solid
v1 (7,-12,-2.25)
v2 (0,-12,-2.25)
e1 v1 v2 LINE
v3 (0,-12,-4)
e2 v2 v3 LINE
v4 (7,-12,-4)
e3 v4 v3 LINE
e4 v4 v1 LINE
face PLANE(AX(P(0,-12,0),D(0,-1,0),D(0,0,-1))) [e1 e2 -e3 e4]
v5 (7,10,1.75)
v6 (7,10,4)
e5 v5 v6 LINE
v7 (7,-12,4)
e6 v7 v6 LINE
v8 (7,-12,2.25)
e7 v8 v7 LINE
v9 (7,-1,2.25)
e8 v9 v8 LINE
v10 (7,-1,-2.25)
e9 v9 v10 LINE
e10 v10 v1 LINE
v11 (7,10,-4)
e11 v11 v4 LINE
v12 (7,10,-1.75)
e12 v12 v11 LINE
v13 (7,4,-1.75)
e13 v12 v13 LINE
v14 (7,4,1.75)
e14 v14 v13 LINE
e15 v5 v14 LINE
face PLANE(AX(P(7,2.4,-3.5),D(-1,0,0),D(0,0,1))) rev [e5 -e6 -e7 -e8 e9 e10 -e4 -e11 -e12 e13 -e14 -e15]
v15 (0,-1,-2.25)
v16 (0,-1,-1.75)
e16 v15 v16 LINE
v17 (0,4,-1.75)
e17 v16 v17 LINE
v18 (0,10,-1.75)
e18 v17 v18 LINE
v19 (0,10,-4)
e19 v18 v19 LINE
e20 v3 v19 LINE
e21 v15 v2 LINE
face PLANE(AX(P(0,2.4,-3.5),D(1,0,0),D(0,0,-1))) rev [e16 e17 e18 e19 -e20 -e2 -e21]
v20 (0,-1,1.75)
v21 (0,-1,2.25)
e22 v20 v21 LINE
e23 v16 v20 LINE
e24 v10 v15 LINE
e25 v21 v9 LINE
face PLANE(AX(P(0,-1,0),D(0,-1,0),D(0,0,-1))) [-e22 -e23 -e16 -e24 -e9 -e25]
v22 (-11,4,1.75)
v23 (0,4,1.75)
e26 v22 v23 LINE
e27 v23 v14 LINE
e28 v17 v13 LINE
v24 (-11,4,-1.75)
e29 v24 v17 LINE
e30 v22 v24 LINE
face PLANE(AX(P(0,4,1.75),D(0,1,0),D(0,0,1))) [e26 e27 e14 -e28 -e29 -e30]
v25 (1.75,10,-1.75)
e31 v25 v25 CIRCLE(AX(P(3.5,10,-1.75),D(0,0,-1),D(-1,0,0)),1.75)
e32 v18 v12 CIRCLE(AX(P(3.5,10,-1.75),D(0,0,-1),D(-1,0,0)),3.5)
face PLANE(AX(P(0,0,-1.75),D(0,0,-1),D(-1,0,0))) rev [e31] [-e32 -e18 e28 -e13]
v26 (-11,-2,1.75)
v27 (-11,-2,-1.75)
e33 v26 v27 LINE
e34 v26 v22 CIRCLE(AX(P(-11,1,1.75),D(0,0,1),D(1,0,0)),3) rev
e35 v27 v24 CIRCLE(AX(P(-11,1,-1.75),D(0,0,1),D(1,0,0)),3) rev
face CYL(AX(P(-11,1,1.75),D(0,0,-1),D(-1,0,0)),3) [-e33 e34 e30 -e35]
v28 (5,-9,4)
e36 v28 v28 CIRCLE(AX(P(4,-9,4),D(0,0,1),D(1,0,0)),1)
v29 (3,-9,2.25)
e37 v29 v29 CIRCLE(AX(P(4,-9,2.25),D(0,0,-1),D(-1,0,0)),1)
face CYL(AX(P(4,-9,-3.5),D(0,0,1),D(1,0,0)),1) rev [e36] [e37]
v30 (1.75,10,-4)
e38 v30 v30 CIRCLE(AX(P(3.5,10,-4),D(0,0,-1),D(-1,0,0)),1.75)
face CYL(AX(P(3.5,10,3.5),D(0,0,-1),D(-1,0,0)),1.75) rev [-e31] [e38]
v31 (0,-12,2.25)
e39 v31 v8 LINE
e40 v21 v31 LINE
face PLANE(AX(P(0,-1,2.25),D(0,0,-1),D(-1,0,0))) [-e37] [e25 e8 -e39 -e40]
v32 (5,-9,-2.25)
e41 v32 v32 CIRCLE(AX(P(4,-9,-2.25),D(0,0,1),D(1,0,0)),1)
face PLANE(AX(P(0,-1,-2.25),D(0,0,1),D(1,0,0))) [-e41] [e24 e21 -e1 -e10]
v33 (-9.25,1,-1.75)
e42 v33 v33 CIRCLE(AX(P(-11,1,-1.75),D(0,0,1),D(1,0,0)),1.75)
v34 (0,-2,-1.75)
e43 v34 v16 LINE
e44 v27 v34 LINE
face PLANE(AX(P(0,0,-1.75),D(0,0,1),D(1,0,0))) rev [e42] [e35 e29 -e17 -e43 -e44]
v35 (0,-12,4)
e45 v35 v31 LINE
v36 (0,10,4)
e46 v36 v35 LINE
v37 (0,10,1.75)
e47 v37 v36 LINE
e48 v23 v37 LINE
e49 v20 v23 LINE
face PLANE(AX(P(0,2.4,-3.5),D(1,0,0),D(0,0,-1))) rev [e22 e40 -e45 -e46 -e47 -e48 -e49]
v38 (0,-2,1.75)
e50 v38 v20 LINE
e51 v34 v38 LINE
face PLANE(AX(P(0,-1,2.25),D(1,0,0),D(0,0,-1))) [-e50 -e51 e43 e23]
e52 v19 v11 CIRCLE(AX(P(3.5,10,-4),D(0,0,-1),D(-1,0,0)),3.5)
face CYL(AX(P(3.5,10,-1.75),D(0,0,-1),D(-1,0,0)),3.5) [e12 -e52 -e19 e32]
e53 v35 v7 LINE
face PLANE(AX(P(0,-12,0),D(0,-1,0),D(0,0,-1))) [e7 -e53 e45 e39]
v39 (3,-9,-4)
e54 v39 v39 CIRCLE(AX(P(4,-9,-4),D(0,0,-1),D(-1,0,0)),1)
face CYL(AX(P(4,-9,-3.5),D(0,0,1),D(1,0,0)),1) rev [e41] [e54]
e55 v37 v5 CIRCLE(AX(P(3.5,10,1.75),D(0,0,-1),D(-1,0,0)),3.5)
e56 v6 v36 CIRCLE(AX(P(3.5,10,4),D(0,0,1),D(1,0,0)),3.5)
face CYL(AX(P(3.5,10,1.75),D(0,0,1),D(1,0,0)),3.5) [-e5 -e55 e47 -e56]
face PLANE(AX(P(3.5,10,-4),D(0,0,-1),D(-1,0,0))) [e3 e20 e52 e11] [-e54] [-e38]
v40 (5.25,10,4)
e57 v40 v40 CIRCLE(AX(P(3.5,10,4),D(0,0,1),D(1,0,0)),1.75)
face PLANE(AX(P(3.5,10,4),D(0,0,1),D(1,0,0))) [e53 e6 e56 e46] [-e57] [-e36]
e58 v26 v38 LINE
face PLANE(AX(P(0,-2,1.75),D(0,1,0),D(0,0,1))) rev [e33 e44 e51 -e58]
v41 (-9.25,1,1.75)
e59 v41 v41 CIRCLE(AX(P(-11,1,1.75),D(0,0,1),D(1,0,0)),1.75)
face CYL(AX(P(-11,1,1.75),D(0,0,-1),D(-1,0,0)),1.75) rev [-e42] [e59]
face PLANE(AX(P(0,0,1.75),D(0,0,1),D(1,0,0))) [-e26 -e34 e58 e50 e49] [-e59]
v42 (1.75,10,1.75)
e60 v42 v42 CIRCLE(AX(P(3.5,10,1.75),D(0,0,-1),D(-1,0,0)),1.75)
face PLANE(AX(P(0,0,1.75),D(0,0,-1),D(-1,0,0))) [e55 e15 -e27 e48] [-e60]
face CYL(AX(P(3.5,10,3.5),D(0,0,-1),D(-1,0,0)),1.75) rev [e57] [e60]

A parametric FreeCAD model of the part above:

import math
import FreeCAD as App
import Part
import Sketcher
from FreeCAD import Vector


def add_polygon(sketch, points):
    """Adds a closed chain of lines whose ends are joined by coincident constraints."""
    first, n = sketch.GeometryCount, len(points)
    for a, b in zip(points, points[1:] + points[:1]):
        sketch.addGeometry(Part.LineSegment(App.Vector(*a, 0), App.Vector(*b, 0)), False)
    for i in range(n):
        sketch.addConstraint(Sketcher.Constraint("Coincident", first + i, 2, first + (i + 1) % n, 1))

doc = App.newDocument("Part")
body = doc.addObject("PartDesign::Body", "Body")

# Sketch on XZ plane
sketch1 = body.newObject("Sketcher::SketchObject", "Sketch")
sketch1.AttachmentSupport = (doc.getObject("XZ_Plane"), [""])
sketch1.MapMode = "FlatFace"
add_polygon(sketch1, [(0, -4), (0, 4), (7, 4), (7, -4)])  # lines 0-3
sketch1.addConstraint(Sketcher.Constraint("Vertical", 0))
sketch1.addConstraint(Sketcher.Constraint("Horizontal", 1))
sketch1.addConstraint(Sketcher.Constraint("Vertical", 2))
sketch1.addConstraint(Sketcher.Constraint("Horizontal", 3))
sketch1.addConstraint(Sketcher.Constraint("Symmetric", 0, 2, 3, 2, -1, 1))
sketch1.addConstraint(Sketcher.Constraint("Equal", 3, 0))
sketch1.addConstraint(Sketcher.Constraint("DistanceX", 1, 1, 1, 2, 7.0))
pad1 = body.newObject("PartDesign::Pad", "Pad")
pad1.Profile = sketch1
pad1.Length = 2.4
pad1.Reversed = True

# Sketch on XY plane
sketch2 = body.newObject("Sketcher::SketchObject", "Sketch001")
sketch2.AttachmentSupport = (doc.getObject("XY_Plane"), [""])
sketch2.MapMode = "FlatFace"
sketch2.AttachmentOffset = App.Placement(Vector(0, 0, -3.5), App.Rotation())
sketch2.addGeometry(Part.LineSegment(Vector(0, 2.4, 0), Vector(0, 10, 0)), False)
sketch2.addGeometry(Part.ArcOfCircle(Part.Circle(Vector(3.5, 10, 0), Vector(0, 0, 1), 3.5), math.radians(0), math.radians(180)), False)
sketch2.addGeometry(Part.LineSegment(Vector(7, 10, 0), Vector(7, 2.4, 0)), False)
sketch2.addGeometry(Part.LineSegment(Vector(7, 2.4, 0), Vector(0, 2.4, 0)), False)
sketch2.addConstraint(Sketcher.Constraint("Tangent", 0, 2, 1, 2))
sketch2.addConstraint(Sketcher.Constraint("Tangent", 1, 1, 2, 1))
sketch2.addConstraint(Sketcher.Constraint("Coincident", 2, 2, 3, 1))
sketch2.addConstraint(Sketcher.Constraint("Coincident", 3, 2, 0, 1))
sketch2.addConstraint(Sketcher.Constraint("Vertical", 0))
sketch2.addConstraint(Sketcher.Constraint("Vertical", 2))
sketch2.addConstraint(Sketcher.Constraint("Horizontal", 3))
sketch2.addConstraint(Sketcher.Constraint("PointOnObject", 0, 2, -2))
sketch2.addConstraint(Sketcher.Constraint("Radius", 1, 3.5))
sketch2.addConstraint(Sketcher.Constraint("DistanceY", 0, 1, 0, 2, 7.6))
sketch2.addConstraint(Sketcher.Constraint("DistanceY", -1, 1, 1, 3, 10.0))
pad2 = body.newObject("PartDesign::Pad", "Pad001")
pad2.Profile = sketch2
pad2.Length = 1.75

# Sketch on XY plane
sketch3 = body.newObject("Sketcher::SketchObject", "Sketch002")
sketch3.AttachmentSupport = (doc.getObject("XY_Plane"), [""])
sketch3.MapMode = "FlatFace"
sketch3.AttachmentOffset = App.Placement(Vector(0, 0, 1.75), App.Rotation())
sketch3.addGeometry(Part.LineSegment(Vector(0, 2.4, 0), Vector(0, 10, 0)), False)
sketch3.addGeometry(Part.ArcOfCircle(Part.Circle(Vector(3.5, 10, 0), Vector(0, 0, 1), 3.5), math.radians(0), math.radians(180)), False)
sketch3.addGeometry(Part.LineSegment(Vector(7, 10, 0), Vector(7, 2.4, 0)), False)
sketch3.addGeometry(Part.LineSegment(Vector(7, 2.4, 0), Vector(0, 2.4, 0)), False)
sketch3.addConstraint(Sketcher.Constraint("Tangent", 0, 2, 1, 2))
sketch3.addConstraint(Sketcher.Constraint("Tangent", 1, 1, 2, 1))
sketch3.addConstraint(Sketcher.Constraint("Coincident", 2, 2, 3, 1))
sketch3.addConstraint(Sketcher.Constraint("Coincident", 3, 2, 0, 1))
sketch3.addConstraint(Sketcher.Constraint("Vertical", 0))
sketch3.addConstraint(Sketcher.Constraint("Vertical", 2))
sketch3.addConstraint(Sketcher.Constraint("Horizontal", 3))
sketch3.addConstraint(Sketcher.Constraint("PointOnObject", 0, 2, -2))
sketch3.addConstraint(Sketcher.Constraint("Radius", 1, 3.5))
sketch3.addConstraint(Sketcher.Constraint("DistanceY", 0, 1, 0, 2, 7.6))
sketch3.addConstraint(Sketcher.Constraint("DistanceY", -1, 1, 1, 3, 10.0))
pad3 = body.newObject("PartDesign::Pad", "Pad002")
pad3.Profile = sketch3
pad3.Length = 1.75

# Sketch on XY plane
sketch4 = body.newObject("Sketcher::SketchObject", "Sketch003")
sketch4.AttachmentSupport = (doc.getObject("XY_Plane"), [""])
sketch4.MapMode = "FlatFace"
sketch4.AttachmentOffset = App.Placement(Vector(0, 0, -3.5), App.Rotation())
sketch4.addGeometry(Part.Circle(Vector(3.5, 10, 0), Vector(0, 0, 1), 1.8), False)
sketch4.addConstraint(Sketcher.Constraint("Diameter", 0, 3.5))
sketch4.addConstraint(Sketcher.Constraint("DistanceY", -1, 1, 0, 3, 10.0))
sketch4.addConstraint(Sketcher.Constraint("DistanceX", -1, 1, 0, 3, 3.5))
pocket1 = body.newObject("PartDesign::Pocket", "Pocket")
pocket1.Profile = sketch4
pocket1.Type = "ThroughAll"
pocket1.Reversed = True

# Sketch on XZ plane
sketch5 = body.newObject("Sketcher::SketchObject", "Sketch004")
sketch5.AttachmentSupport = (doc.getObject("XZ_Plane"), [""])
sketch5.MapMode = "FlatFace"
add_polygon(sketch5, [(0, 4), (0, -4), (7, -4), (7, 4)])  # lines 0-3
sketch5.addConstraint(Sketcher.Constraint("Vertical", 0))
sketch5.addConstraint(Sketcher.Constraint("Horizontal", 1))
sketch5.addConstraint(Sketcher.Constraint("Vertical", 2))
sketch5.addConstraint(Sketcher.Constraint("Horizontal", 3))
sketch5.addConstraint(Sketcher.Constraint("Symmetric", 0, 2, 3, 2, -1, 1))
sketch5.addConstraint(Sketcher.Constraint("Equal", 3, 0))
sketch5.addConstraint(Sketcher.Constraint("DistanceX", 1, 1, 1, 2, 7.0))
pad4 = body.newObject("PartDesign::Pad", "Pad003")
pad4.Profile = sketch5
pad4.Length = 12

# Sketch on XY plane
sketch6 = body.newObject("Sketcher::SketchObject", "Sketch005")
sketch6.AttachmentSupport = (doc.getObject("XY_Plane"), [""])
sketch6.MapMode = "FlatFace"
sketch6.addGeometry(Part.ArcOfCircle(Part.Circle(Vector(-11, 1, 0), Vector(0, 0, 1), 3), math.radians(90), math.radians(270)), False)
sketch6.addGeometry(Part.LineSegment(Vector(-11, -2, 0), Vector(7, -2, 0)), False)
sketch6.addGeometry(Part.LineSegment(Vector(7, -2, 0), Vector(7, 4, 0)), False)
sketch6.addGeometry(Part.LineSegment(Vector(7, 4, 0), Vector(-11, 4, 0)), False)
sketch6.addGeometry(Part.Circle(Vector(-11, 1, 0), Vector(0, 0, 1), 1.8), False)
sketch6.addConstraint(Sketcher.Constraint("Tangent", 0, 2, 1, 1))
sketch6.addConstraint(Sketcher.Constraint("Coincident", 1, 2, 2, 1))
sketch6.addConstraint(Sketcher.Constraint("Coincident", 2, 2, 3, 1))
sketch6.addConstraint(Sketcher.Constraint("Tangent", 3, 2, 0, 1))
sketch6.addConstraint(Sketcher.Constraint("Horizontal", 1))
sketch6.addConstraint(Sketcher.Constraint("Vertical", 2))
sketch6.addConstraint(Sketcher.Constraint("Horizontal", 3))
sketch6.addConstraint(Sketcher.Constraint("Coincident", 4, 3, 0, 3))
sketch6.addConstraint(Sketcher.Constraint("Radius", 0, 3.0))
sketch6.addConstraint(Sketcher.Constraint("Diameter", 4, 3.5))
sketch6.addConstraint(Sketcher.Constraint("DistanceX", 1, 1, 1, 2, 18.0))
sketch6.addConstraint(Sketcher.Constraint("DistanceX", 0, 3, -1, 1, 11.0))
sketch6.addConstraint(Sketcher.Constraint("DistanceY", -1, 1, 0, 3, 1.0))
pad5 = body.newObject("PartDesign::Pad", "Pad004")
pad5.Profile = sketch6
pad5.Length = 3.5
pad5.Midplane = True

# Sketch on XY plane
sketch7 = body.newObject("Sketcher::SketchObject", "Sketch006")
sketch7.AttachmentSupport = (doc.getObject("XY_Plane"), [""])
sketch7.MapMode = "FlatFace"
sketch7.AttachmentOffset = App.Placement(Vector(0, 0, 3.5), App.Rotation())
sketch7.addGeometry(Part.Circle(Vector(4, -9, 0), Vector(0, 0, 1), 1), False)
sketch7.addConstraint(Sketcher.Constraint("Diameter", 0, 2.0))
sketch7.addConstraint(Sketcher.Constraint("DistanceX", -1, 1, 0, 3, 4.0))
sketch7.addConstraint(Sketcher.Constraint("DistanceY", 0, 3, -1, 1, 9.0))
pocket2 = body.newObject("PartDesign::Pocket", "Pocket001")
pocket2.Profile = sketch7
pocket2.Type = "ThroughAll"

# Sketch on XZ plane
sketch8 = body.newObject("Sketcher::SketchObject", "Sketch007")
sketch8.AttachmentSupport = (doc.getObject("XZ_Plane"), [""])
sketch8.MapMode = "FlatFace"
sketch8.AttachmentOffset = App.Placement(Vector(0, 0, 12), App.Rotation())
add_polygon(sketch8, [(0, -2.2), (0, 2.2), (7, 2.2), (7, -2.2)])  # lines 0-3
sketch8.addConstraint(Sketcher.Constraint("Vertical", 0))
sketch8.addConstraint(Sketcher.Constraint("Horizontal", 1))
sketch8.addConstraint(Sketcher.Constraint("Vertical", 2))
sketch8.addConstraint(Sketcher.Constraint("Horizontal", 3))
sketch8.addConstraint(Sketcher.Constraint("Symmetric", 0, 2, 3, 2, -1, 1))
sketch8.addConstraint(Sketcher.Constraint("DistanceX", 1, 1, 1, 2, 7.0))
sketch8.addConstraint(Sketcher.Constraint("DistanceY", 0, 1, 0, 2, 4.5))
pocket3 = body.newObject("PartDesign::Pocket", "Pocket002")
pocket3.Profile = sketch8
pocket3.Length = 11

# Sketch on XY plane
sketch9 = body.newObject("Sketcher::SketchObject", "Sketch008")
sketch9.AttachmentSupport = (doc.getObject("XY_Plane"), [""])
sketch9.MapMode = "FlatFace"
sketch9.AttachmentOffset = App.Placement(Vector(0, 0, 3.5), App.Rotation())
sketch9.addGeometry(Part.LineSegment(Vector(0, 10, 0), Vector(0, -12, 0)), False)
sketch9.addGeometry(Part.LineSegment(Vector(0, -12, 0), Vector(7, -12, 0)), False)
sketch9.addGeometry(Part.LineSegment(Vector(7, -12, 0), Vector(7, 10, 0)), False)
sketch9.addGeometry(Part.ArcOfCircle(Part.Circle(Vector(3.5, 10, 0), Vector(0, 0, 1), 3.5), math.radians(0), math.radians(180)), False)
sketch9.addGeometry(Part.Circle(Vector(4, -9, 0), Vector(0, 0, 1), 1), False)
sketch9.addGeometry(Part.Circle(Vector(3.5, 10, 0), Vector(0, 0, 1), 1.8), False)
sketch9.addConstraint(Sketcher.Constraint("Coincident", 0, 2, 1, 1))
sketch9.addConstraint(Sketcher.Constraint("Coincident", 1, 2, 2, 1))
sketch9.addConstraint(Sketcher.Constraint("Tangent", 2, 2, 3, 1))
sketch9.addConstraint(Sketcher.Constraint("Tangent", 3, 2, 0, 1))
sketch9.addConstraint(Sketcher.Constraint("Vertical", 0))
sketch9.addConstraint(Sketcher.Constraint("Horizontal", 1))
sketch9.addConstraint(Sketcher.Constraint("Vertical", 2))
sketch9.addConstraint(Sketcher.Constraint("Coincident", 5, 3, 3, 3))
sketch9.addConstraint(Sketcher.Constraint("PointOnObject", 0, 2, -2))
sketch9.addConstraint(Sketcher.Constraint("Diameter", 4, 2.0))
sketch9.addConstraint(Sketcher.Constraint("Diameter", 5, 3.5))
sketch9.addConstraint(Sketcher.Constraint("Radius", 3, 3.5))
sketch9.addConstraint(Sketcher.Constraint("DistanceY", 0, 2, 0, 1, 22.0))
sketch9.addConstraint(Sketcher.Constraint("DistanceY", -1, 1, 3, 3, 10.0))
sketch9.addConstraint(Sketcher.Constraint("DistanceX", -1, 1, 4, 3, 4.0))
sketch9.addConstraint(Sketcher.Constraint("DistanceY", 4, 3, -1, 1, 9.0))
pad6 = body.newObject("PartDesign::Pad", "Pad005")
pad6.Profile = sketch9
pad6.Length = 0.5

# Sketch on XY plane
sketch10 = body.newObject("Sketcher::SketchObject", "Sketch009")
sketch10.AttachmentSupport = (doc.getObject("XY_Plane"), [""])
sketch10.MapMode = "FlatFace"
sketch10.AttachmentOffset = App.Placement(Vector(0, 0, -4), App.Rotation())
sketch10.addGeometry(Part.LineSegment(Vector(7, 10, 0), Vector(7, -12, 0)), False)
sketch10.addGeometry(Part.LineSegment(Vector(7, -12, 0), Vector(0, -12, 0)), False)
sketch10.addGeometry(Part.LineSegment(Vector(0, -12, 0), Vector(0, 10, 0)), False)
sketch10.addGeometry(Part.ArcOfCircle(Part.Circle(Vector(3.5, 10, 0), Vector(0, 0, 1), 3.5), math.radians(0), math.radians(180)), False)
sketch10.addGeometry(Part.Circle(Vector(4, -9, 0), Vector(0, 0, 1), 1), False)
sketch10.addGeometry(Part.Circle(Vector(3.5, 10, 0), Vector(0, 0, 1), 1.8), False)
sketch10.addConstraint(Sketcher.Constraint("Coincident", 0, 2, 1, 1))
sketch10.addConstraint(Sketcher.Constraint("Coincident", 1, 2, 2, 1))
sketch10.addConstraint(Sketcher.Constraint("Tangent", 2, 2, 3, 2))
sketch10.addConstraint(Sketcher.Constraint("Tangent", 3, 1, 0, 1))
sketch10.addConstraint(Sketcher.Constraint("Vertical", 0))
sketch10.addConstraint(Sketcher.Constraint("Horizontal", 1))
sketch10.addConstraint(Sketcher.Constraint("Vertical", 2))
sketch10.addConstraint(Sketcher.Constraint("Coincident", 5, 3, 3, 3))
sketch10.addConstraint(Sketcher.Constraint("PointOnObject", 1, 2, -2))
sketch10.addConstraint(Sketcher.Constraint("Diameter", 4, 2.0))
sketch10.addConstraint(Sketcher.Constraint("Diameter", 5, 3.5))
sketch10.addConstraint(Sketcher.Constraint("Radius", 3, 3.5))
sketch10.addConstraint(Sketcher.Constraint("DistanceY", 0, 2, 0, 1, 22.0))
sketch10.addConstraint(Sketcher.Constraint("DistanceY", -1, 1, 3, 3, 10.0))
sketch10.addConstraint(Sketcher.Constraint("DistanceX", -1, 1, 4, 3, 4.0))
sketch10.addConstraint(Sketcher.Constraint("DistanceY", 4, 3, -1, 1, 9.0))
pad7 = body.newObject("PartDesign::Pad", "Pad006")
pad7.Profile = sketch10
pad7.Length = 0.5

doc.recompute()
